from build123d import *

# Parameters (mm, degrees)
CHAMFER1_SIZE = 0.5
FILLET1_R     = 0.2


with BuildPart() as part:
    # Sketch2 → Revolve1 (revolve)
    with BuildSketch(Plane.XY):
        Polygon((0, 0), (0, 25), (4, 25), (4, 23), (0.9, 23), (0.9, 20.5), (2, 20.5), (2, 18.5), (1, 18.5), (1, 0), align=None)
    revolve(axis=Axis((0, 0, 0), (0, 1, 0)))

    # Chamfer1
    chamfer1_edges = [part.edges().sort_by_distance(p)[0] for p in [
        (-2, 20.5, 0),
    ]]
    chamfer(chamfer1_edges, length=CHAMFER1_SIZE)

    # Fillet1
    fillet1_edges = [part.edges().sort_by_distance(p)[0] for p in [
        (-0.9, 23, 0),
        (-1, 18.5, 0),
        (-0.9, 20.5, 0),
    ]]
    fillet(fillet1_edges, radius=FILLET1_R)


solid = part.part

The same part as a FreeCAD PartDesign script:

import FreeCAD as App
import Part
import Sketcher
from FreeCAD import Vector


def edges_at(feature, points):
    """Names of the edges that pass closest to the given points."""
    edges = feature.Shape.Edges
    near = lambda p: min(range(len(edges)), key=lambda i: edges[i].distToShape(Part.Vertex(*p))[0])
    return sorted({f"Edge{near(p) + 1}" for p in points})


def add_polygon(sketch, points):
    """Adds a closed chain of lines whose ends are joined by coincident constraints."""
    first, n = sketch.GeometryCount, len(points)
    for a, b in zip(points, points[1:] + points[:1]):
        sketch.addGeometry(Part.LineSegment(App.Vector(*a, 0), App.Vector(*b, 0)), False)
    for i in range(n):
        sketch.addConstraint(Sketcher.Constraint("Coincident", first + i, 2, first + (i + 1) % n, 1))

doc = App.newDocument("Part")
body = doc.addObject("PartDesign::Body", "Body")

sketch1 = body.newObject("Sketcher::SketchObject", "Sketch")
sketch1.AttachmentSupport = (doc.getObject("XY_Plane"), [""])
sketch1.MapMode = "FlatFace"
add_polygon(sketch1, [(0, 25), (0, 0), (1, 0), (1, 18.5), (2, 18.5), (2, 20.5), (0.9, 20.5), (0.9, 23), (4, 23), (4, 25)])
sketch1.addConstraint([
    Sketcher.Constraint("Vertical", 0),
    Sketcher.Constraint("Horizontal", 1),
    Sketcher.Constraint("Vertical", 2),
    Sketcher.Constraint("Horizontal", 3),
    Sketcher.Constraint("Vertical", 4),
    Sketcher.Constraint("Horizontal", 5),
    Sketcher.Constraint("Vertical", 6),
    Sketcher.Constraint("Horizontal", 7),
    Sketcher.Constraint("Vertical", 8),
    Sketcher.Constraint("Horizontal", 9),
    Sketcher.Constraint("Coincident", 0, 2, -1, 1),
    Sketcher.Constraint("Equal", 1, 3),
    Sketcher.Constraint("Equal", 4, 8),
    Sketcher.Constraint("DistanceX", 1, 1, 1, 2, 1.0),
    Sketcher.Constraint("DistanceX", 9, 2, 9, 1, 4.0),
    Sketcher.Constraint("DistanceY", 0, 2, 0, 1, 25.0),
    Sketcher.Constraint("DistanceY", 4, 1, 4, 2, 2.0),
    Sketcher.Constraint("DistanceX", 5, 2, 5, 1, 1.1),
    Sketcher.Constraint("DistanceY", 2, 1, 2, 2, 18.5),
])
revolution = body.newObject("PartDesign::Revolution", "Revolution")
revolution.Profile = sketch1
revolution.ReferenceAxis = (sketch1, ["V_Axis"])
revolution.Angle = 360
doc.recompute()

chamfer = body.newObject("PartDesign::Chamfer", "Chamfer")
chamfer.Base = (revolution, edges_at(revolution, [(-2, 20.5, 0)]))
chamfer.Size = 0.5
doc.recompute()

fillet = body.newObject("PartDesign::Fillet", "Fillet")
fillet.Base = (chamfer, edges_at(chamfer, [(-0.9, 23, 0), (-1, 18.5, 0), (-0.9, 20.5, 0)]))
fillet.Radius = 0.2

doc.recompute()
